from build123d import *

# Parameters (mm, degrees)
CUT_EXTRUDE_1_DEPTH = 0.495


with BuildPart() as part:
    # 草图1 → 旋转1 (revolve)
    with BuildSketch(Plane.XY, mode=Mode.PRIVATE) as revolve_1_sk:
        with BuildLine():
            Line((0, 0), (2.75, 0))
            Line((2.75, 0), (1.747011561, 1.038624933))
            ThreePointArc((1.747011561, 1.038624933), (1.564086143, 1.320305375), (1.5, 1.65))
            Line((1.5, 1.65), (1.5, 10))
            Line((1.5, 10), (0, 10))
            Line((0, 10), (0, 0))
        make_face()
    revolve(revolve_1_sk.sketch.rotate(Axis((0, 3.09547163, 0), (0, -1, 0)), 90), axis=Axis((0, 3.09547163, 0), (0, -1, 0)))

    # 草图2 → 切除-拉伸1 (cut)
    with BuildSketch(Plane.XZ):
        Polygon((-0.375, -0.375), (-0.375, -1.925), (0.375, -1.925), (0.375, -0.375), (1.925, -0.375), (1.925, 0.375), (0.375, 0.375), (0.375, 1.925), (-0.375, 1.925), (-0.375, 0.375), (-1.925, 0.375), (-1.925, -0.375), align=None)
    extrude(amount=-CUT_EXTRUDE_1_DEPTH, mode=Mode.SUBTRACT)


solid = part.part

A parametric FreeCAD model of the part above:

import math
import FreeCAD as App
import Part
import Sketcher
from FreeCAD import Vector
Q = App.Units.Quantity

doc = App.newDocument("Part")
body = doc.addObject("PartDesign::Body", "Body")

sketch1 = body.newObject("Sketcher::SketchObject", "Sketch")
sketch1.AttachmentSupport = (doc.getObject("XY_Plane"), [""])
sketch1.MapMode = "FlatFace"
sketch1.addGeometry([
    Part.LineSegment(Vector(0, 0, 0), Vector(2.75, 0, 0)),
    Part.LineSegment(Vector(2.75, 0, 0), Vector(1.747012, 1.038625, 0)),
    Part.ArcOfCircle(Part.Circle(Vector(2.380109, 1.65, 0), Vector(0, 0, 1), 0.880109), math.radians(180), math.radians(224)),
    Part.LineSegment(Vector(1.5, 1.65, 0), Vector(1.5, 10, 0)),
    Part.LineSegment(Vector(1.5, 10, 0), Vector(0, 10, 0)),
    Part.LineSegment(Vector(0, 10, 0), Vector(0, 0, 0)),
], False)
sketch1.addConstraint([
    Sketcher.Constraint("Coincident", 0, 2, 1, 1),
    Sketcher.Constraint("Tangent", 1, 2, 2, 2),
    Sketcher.Constraint("Tangent", 2, 1, 3, 1),
    Sketcher.Constraint("Coincident", 3, 2, 4, 1),
    Sketcher.Constraint("Coincident", 4, 2, 5, 1),
    Sketcher.Constraint("Coincident", 5, 2, 0, 1),
    Sketcher.Constraint("Horizontal", 0),
    Sketcher.Constraint("Vertical", 3),
    Sketcher.Constraint("Horizontal", 4),
    Sketcher.Constraint("Vertical", 5),
    Sketcher.Constraint("Coincident", 5, 2, -1, 1),
    Sketcher.Constraint("DistanceY", 5, 2, 5, 1, 10.0),
    Sketcher.Constraint("Angle", 1, Q("134 deg")),
    Sketcher.Constraint("DistanceX", 4, 2, 4, 1, 1.5),
    Sketcher.Constraint("DistanceX", 0, 1, 0, 2, 2.75),
    Sketcher.Constraint("DistanceY", 3, 1, 3, 2, 8.35),
])
revolution = body.newObject("PartDesign::Revolution", "Revolution")
revolution.Profile = sketch1
revolution.ReferenceAxis = (sketch1, ["V_Axis"])
revolution.Angle = 360

sketch2 = body.newObject("Sketcher::SketchObject", "Sketch001")
sketch2.AttachmentSupport = (doc.getObject("XZ_Plane"), [""])
sketch2.MapMode = "FlatFace"
sketch2.addGeometry([
    Part.LineSegment(Vector(-0.375, -0.375, 0), Vector(-0.375, -1.925, 0)),
    Part.LineSegment(Vector(-0.375, -1.925, 0), Vector(0.375, -1.925, 0)),
    Part.LineSegment(Vector(0.375, -1.925, 0), Vector(0.375, -0.375, 0)),
    Part.LineSegment(Vector(0.375, -0.375, 0), Vector(1.925, -0.375, 0)),
    Part.LineSegment(Vector(1.925, -0.375, 0), Vector(1.925, 0.375, 0)),
    Part.LineSegment(Vector(1.925, 0.375, 0), Vector(0.375, 0.375, 0)),
    Part.LineSegment(Vector(0.375, 0.375, 0), Vector(0.375, 1.925, 0)),
    Part.LineSegment(Vector(0.375, 1.925, 0), Vector(-0.375, 1.925, 0)),
    Part.LineSegment(Vector(-0.375, 1.925, 0), Vector(-0.375, 0.375, 0)),
    Part.LineSegment(Vector(-0.375, 0.375, 0), Vector(-1.925, 0.375, 0)),
    Part.LineSegment(Vector(-1.925, 0.375, 0), Vector(-1.925, -0.375, 0)),
    Part.LineSegment(Vector(-1.925, -0.375, 0), Vector(-0.375, -0.375, 0)),
], False)
sketch2.addConstraint([
    Sketcher.Constraint("Coincident", 0, 2, 1, 1),
    Sketcher.Constraint("Coincident", 1, 2, 2, 1),
    Sketcher.Constraint("Coincident", 2, 2, 3, 1),
    Sketcher.Constraint("Coincident", 3, 2, 4, 1),
    Sketcher.Constraint("Coincident", 4, 2, 5, 1),
    Sketcher.Constraint("Coincident", 5, 2, 6, 1),
    Sketcher.Constraint("Coincident", 6, 2, 7, 1),
    Sketcher.Constraint("Coincident", 7, 2, 8, 1),
    Sketcher.Constraint("Coincident", 8, 2, 9, 1),
    Sketcher.Constraint("Coincident", 9, 2, 10, 1),
    Sketcher.Constraint("Coincident", 10, 2, 11, 1),
    Sketcher.Constraint("Coincident", 11, 2, 0, 1),
    Sketcher.Constraint("Vertical", 0),
    Sketcher.Constraint("Horizontal", 1),
    Sketcher.Constraint("Vertical", 2),
    Sketcher.Constraint("Horizontal", 3),
    Sketcher.Constraint("Vertical", 4),
    Sketcher.Constraint("Horizontal", 5),
    Sketcher.Constraint("Vertical", 6),
    Sketcher.Constraint("Horizontal", 7),
    Sketcher.Constraint("Vertical", 8),
    Sketcher.Constraint("Horizontal", 9),
    Sketcher.Constraint("Vertical", 10),
    Sketcher.Constraint("Horizontal", 11),
    Sketcher.Constraint("Symmetric", 0, 2, 6, 2, -1, 1),
    Sketcher.Constraint("Symmetric", 2, 2, 8, 2, -1, 1),
    Sketcher.Constraint("Symmetric", 4, 2, 10, 2, -1, 1),
    Sketcher.Constraint("Symmetric", 5, 2, 8, 2, -2),
    Sketcher.Constraint("Equal", 11, 0),
    Sketcher.Constraint("Equal", 7, 4),
    Sketcher.Constraint("DistanceX", 1, 1, 1, 2, 0.75),
    Sketcher.Constraint("DistanceX", 3, 1, 3, 2, 1.55),
])
pocket1 = body.newObject("PartDesign::Pocket", "Pocket")
pocket1.Profile = sketch2
pocket1.Length = 0.495

doc.recompute()
